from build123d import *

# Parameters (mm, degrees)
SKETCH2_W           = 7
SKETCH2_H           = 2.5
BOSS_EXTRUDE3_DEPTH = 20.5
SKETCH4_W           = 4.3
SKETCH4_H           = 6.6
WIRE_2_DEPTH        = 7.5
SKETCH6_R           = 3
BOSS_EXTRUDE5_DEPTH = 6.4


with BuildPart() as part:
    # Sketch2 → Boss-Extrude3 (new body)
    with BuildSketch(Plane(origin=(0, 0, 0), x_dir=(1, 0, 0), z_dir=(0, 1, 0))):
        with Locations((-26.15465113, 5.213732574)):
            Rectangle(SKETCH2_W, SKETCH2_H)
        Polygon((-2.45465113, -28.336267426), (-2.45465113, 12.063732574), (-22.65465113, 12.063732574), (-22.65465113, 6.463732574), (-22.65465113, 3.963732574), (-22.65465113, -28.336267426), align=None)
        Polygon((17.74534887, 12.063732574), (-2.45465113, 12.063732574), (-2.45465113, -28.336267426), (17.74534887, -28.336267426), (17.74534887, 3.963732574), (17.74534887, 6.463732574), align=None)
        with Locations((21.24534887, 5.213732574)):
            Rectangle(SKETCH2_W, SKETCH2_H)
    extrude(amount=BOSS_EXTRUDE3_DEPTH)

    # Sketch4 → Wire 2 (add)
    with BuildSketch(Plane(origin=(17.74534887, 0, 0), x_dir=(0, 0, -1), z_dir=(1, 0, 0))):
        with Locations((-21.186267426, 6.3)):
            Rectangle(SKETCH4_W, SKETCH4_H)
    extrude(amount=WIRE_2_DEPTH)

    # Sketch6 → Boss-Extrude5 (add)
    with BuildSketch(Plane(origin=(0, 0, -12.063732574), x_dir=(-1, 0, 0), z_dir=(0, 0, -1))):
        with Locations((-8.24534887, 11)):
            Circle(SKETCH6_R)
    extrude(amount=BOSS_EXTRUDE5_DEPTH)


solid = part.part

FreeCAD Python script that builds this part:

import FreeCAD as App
import Part
import Sketcher
from FreeCAD import Vector


def add_polygon(sketch, points):
    """Adds a closed chain of lines whose ends are joined by coincident constraints."""
    first, n = sketch.GeometryCount, len(points)
    for a, b in zip(points, points[1:] + points[:1]):
        sketch.addGeometry(Part.LineSegment(App.Vector(*a, 0), App.Vector(*b, 0)), False)
    for i in range(n):
        sketch.addConstraint(Sketcher.Constraint("Coincident", first + i, 2, first + (i + 1) % n, 1))

doc = App.newDocument("Part")
params = doc.addObject("Spreadsheet::Sheet", "Params")
for row, (alias, value) in enumerate([
    ("sketch1_width", "7 mm"),
    ("sketch1_width2", "40.4 mm"),
    ("sketch1_height", "2.5 mm"),
    ("sketch1_height2", "32.3 mm"),
    ("sketch1_height3", "5.6 mm"),
    ("pad1_length", "20.5 mm"),
    ("sketch2_width", "6.6 mm"),
    ("sketch2_height", "4.3 mm"),
    ("pad2_length", "7.5 mm"),
    ("sketch3_diameter", "6 mm"),
    ("pad3_length", "6.4 mm"),
], start=1):
    params.set(f"A{row}", alias)
    params.set(f"B{row}", "=" + value)
    params.setAlias(f"B{row}", alias)

body = doc.addObject("PartDesign::Body", "Body")

# Sketch on XZ plane
sketch1 = body.newObject("Sketcher::SketchObject", "Sketch")
sketch1.AttachmentSupport = (doc.getObject("XZ_Plane"), [""])
sketch1.MapMode = "FlatFace"
add_polygon(sketch1, [(-29.7, -6.5), (-29.7, -4), (-22.7, -4), (-22.7, 28.3), (17.7, 28.3), (17.7, -4), (24.7, -4), (24.7, -6.5), (17.7, -6.5), (17.7, -12.1), (-22.7, -12.1), (-22.7, -6.5)])  # lines 0-11
sketch1.addConstraint([
    Sketcher.Constraint("Vertical", 0),
    Sketcher.Constraint("Horizontal", 1),
    Sketcher.Constraint("Vertical", 2),
    Sketcher.Constraint("Horizontal", 3),
    Sketcher.Constraint("Vertical", 4),
    Sketcher.Constraint("Horizontal", 5),
    Sketcher.Constraint("Vertical", 6),
    Sketcher.Constraint("Horizontal", 7),
    Sketcher.Constraint("Vertical", 8),
    Sketcher.Constraint("Horizontal", 9),
    Sketcher.Constraint("Vertical", 10),
    Sketcher.Constraint("Horizontal", 11),
    Sketcher.Constraint("Horizontal", 1, 2, 4, 2),
    Sketcher.Constraint("Horizontal", 7, 2, 10, 2),
    Sketcher.Constraint("Vertical", 4, 2, 7, 2),
    Sketcher.Constraint("Vertical", 2, 2, 9, 2),
    Sketcher.Constraint("Equal", 1, 5),
    Sketcher.Constraint("DistanceX", 1, 1, 1, 2, 7.0),
    Sketcher.Constraint("DistanceX", 3, 1, 3, 2, 40.4),
    Sketcher.Constraint("DistanceY", 0, 1, 0, 2, 2.5),
    Sketcher.Constraint("DistanceY", 2, 1, 2, 2, 32.3),
    Sketcher.Constraint("DistanceY", 8, 2, 8, 1, 5.6),
    Sketcher.Constraint("DistanceX", 0, 2, -1, 1, 29.654651),
    Sketcher.Constraint("DistanceY", 0, 2, -1, 1, 3.963733),
])
sketch1.setExpression("Constraints[29]", "Params.sketch1_width")
sketch1.setExpression("Constraints[30]", "Params.sketch1_width2")
sketch1.setExpression("Constraints[31]", "Params.sketch1_height")
sketch1.setExpression("Constraints[32]", "Params.sketch1_height2")
sketch1.setExpression("Constraints[33]", "Params.sketch1_height3")
pad1 = body.newObject("PartDesign::Pad", "Pad")
pad1.Profile = sketch1
pad1.setExpression("Length", "Params.pad1_length")
pad1.Reversed = True

# Sketch on YZ plane
sketch2 = body.newObject("Sketcher::SketchObject", "Sketch001")
sketch2.AttachmentSupport = (doc.getObject("YZ_Plane"), [""])
sketch2.MapMode = "FlatFace"
sketch2.AttachmentOffset = App.Placement(Vector(0, 0, 17.745349), App.Rotation())
add_polygon(sketch2, [(9.6, 23.3), (3, 23.3), (3, 19), (9.6, 19)])  # lines 0-3
sketch2.addConstraint([
    Sketcher.Constraint("Horizontal", 0),
    Sketcher.Constraint("Vertical", 1),
    Sketcher.Constraint("Horizontal", 2),
    Sketcher.Constraint("Vertical", 3),
    Sketcher.Constraint("DistanceX", 0, 2, 0, 1, 6.6),
    Sketcher.Constraint("DistanceY", 1, 2, 1, 1, 4.3),
    Sketcher.Constraint("DistanceX", -1, 1, 0, 2, 3.0),
    Sketcher.Constraint("DistanceY", -1, 1, 0, 2, 23.336267),
])
sketch2.setExpression("Constraints[8]", "Params.sketch2_width")
sketch2.setExpression("Constraints[9]", "Params.sketch2_height")
pad2 = body.newObject("PartDesign::Pad", "Pad001")
pad2.Profile = sketch2
pad2.setExpression("Length", "Params.pad2_length")

# Sketch on XY plane
sketch3 = body.newObject("Sketcher::SketchObject", "Sketch002")
sketch3.AttachmentSupport = (doc.getObject("XY_Plane"), [""])
sketch3.MapMode = "FlatFace"
sketch3.AttachmentOffset = App.Placement(Vector(0, 0, -12.063733), App.Rotation())
sketch3.addGeometry(Part.Circle(Vector(8.2, 11, 0), Vector(0, 0, 1), 3), False)
sketch3.addConstraint([
    Sketcher.Constraint("Diameter", 0, 6.0),
    Sketcher.Constraint("DistanceY", -1, 1, 0, 3, 11.0),
    Sketcher.Constraint("DistanceX", -1, 1, 0, 3, 8.245349),
])
sketch3.setExpression("Constraints[0]", "Params.sketch3_diameter")
pad3 = body.newObject("PartDesign::Pad", "Pad002")
pad3.Profile = sketch3
pad3.setExpression("Length", "Params.pad3_length")
pad3.Reversed = True

doc.recompute()
